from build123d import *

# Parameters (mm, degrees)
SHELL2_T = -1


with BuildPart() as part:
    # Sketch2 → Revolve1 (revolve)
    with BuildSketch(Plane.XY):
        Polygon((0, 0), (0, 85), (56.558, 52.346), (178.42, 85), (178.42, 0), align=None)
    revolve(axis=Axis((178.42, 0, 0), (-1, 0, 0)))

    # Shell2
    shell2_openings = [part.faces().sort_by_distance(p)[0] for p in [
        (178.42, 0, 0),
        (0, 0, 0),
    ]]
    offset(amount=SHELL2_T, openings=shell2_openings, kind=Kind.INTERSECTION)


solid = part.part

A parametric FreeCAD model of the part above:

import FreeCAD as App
import Part
import Sketcher
from FreeCAD import Vector
Q = App.Units.Quantity


def faces_at(feature, points):
    """Names of the faces that lie closest to the given points."""
    faces = feature.Shape.Faces
    near = lambda p: min(range(len(faces)), key=lambda i: faces[i].distToShape(Part.Vertex(*p))[0])
    return sorted({f"Face{near(p) + 1}" for p in points})


def add_polygon(sketch, points):
    """Adds a closed chain of lines whose ends are joined by coincident constraints."""
    first, n = sketch.GeometryCount, len(points)
    for a, b in zip(points, points[1:] + points[:1]):
        sketch.addGeometry(Part.LineSegment(App.Vector(*a, 0), App.Vector(*b, 0)), False)
    for i in range(n):
        sketch.addConstraint(Sketcher.Constraint("Coincident", first + i, 2, first + (i + 1) % n, 1))

doc = App.newDocument("Part")
body = doc.addObject("PartDesign::Body", "Body")

# Sketch on XY plane
sketch1 = body.newObject("Sketcher::SketchObject", "Sketch")
sketch1.AttachmentSupport = (doc.getObject("XY_Plane"), [""])
sketch1.MapMode = "FlatFace"
add_polygon(sketch1, [(0, 85), (0, 0), (178, 0), (178, 85), (57, 52)])  # lines 0-4
sketch1.addConstraint([
    Sketcher.Constraint("Vertical", 0),
    Sketcher.Constraint("Horizontal", 1),
    Sketcher.Constraint("Vertical", 2),
    Sketcher.Constraint("Coincident", 0, 2, -1, 1),
    Sketcher.Constraint("Horizontal", 2, 2, 4, 2),
    Sketcher.Constraint("DistanceY", 0, 2, 0, 1, Q("85 mm")),
    Sketcher.Constraint("DistanceX", 1, 1, 1, 2, Q("178.42 mm")),
    Sketcher.Constraint("DistanceX", -1, 1, 3, 2, Q("56.558 mm")),
    Sketcher.Constraint("DistanceY", -1, 1, 3, 2, Q("52.346 mm")),
])
revolution = body.newObject("PartDesign::Revolution", "Revolution")
revolution.Profile = sketch1
revolution.ReferenceAxis = (sketch1, ["H_Axis"])
revolution.Angle = 360
doc.recompute()

thickness = body.newObject("PartDesign::Thickness", "Thickness")
thickness.Base = (revolution, faces_at(revolution, [(178.42, 0, 0), (0, 0, 0)]))
thickness.Value = 1
thickness.Reversed = True
thickness.Join = "Intersection"

doc.recompute()
